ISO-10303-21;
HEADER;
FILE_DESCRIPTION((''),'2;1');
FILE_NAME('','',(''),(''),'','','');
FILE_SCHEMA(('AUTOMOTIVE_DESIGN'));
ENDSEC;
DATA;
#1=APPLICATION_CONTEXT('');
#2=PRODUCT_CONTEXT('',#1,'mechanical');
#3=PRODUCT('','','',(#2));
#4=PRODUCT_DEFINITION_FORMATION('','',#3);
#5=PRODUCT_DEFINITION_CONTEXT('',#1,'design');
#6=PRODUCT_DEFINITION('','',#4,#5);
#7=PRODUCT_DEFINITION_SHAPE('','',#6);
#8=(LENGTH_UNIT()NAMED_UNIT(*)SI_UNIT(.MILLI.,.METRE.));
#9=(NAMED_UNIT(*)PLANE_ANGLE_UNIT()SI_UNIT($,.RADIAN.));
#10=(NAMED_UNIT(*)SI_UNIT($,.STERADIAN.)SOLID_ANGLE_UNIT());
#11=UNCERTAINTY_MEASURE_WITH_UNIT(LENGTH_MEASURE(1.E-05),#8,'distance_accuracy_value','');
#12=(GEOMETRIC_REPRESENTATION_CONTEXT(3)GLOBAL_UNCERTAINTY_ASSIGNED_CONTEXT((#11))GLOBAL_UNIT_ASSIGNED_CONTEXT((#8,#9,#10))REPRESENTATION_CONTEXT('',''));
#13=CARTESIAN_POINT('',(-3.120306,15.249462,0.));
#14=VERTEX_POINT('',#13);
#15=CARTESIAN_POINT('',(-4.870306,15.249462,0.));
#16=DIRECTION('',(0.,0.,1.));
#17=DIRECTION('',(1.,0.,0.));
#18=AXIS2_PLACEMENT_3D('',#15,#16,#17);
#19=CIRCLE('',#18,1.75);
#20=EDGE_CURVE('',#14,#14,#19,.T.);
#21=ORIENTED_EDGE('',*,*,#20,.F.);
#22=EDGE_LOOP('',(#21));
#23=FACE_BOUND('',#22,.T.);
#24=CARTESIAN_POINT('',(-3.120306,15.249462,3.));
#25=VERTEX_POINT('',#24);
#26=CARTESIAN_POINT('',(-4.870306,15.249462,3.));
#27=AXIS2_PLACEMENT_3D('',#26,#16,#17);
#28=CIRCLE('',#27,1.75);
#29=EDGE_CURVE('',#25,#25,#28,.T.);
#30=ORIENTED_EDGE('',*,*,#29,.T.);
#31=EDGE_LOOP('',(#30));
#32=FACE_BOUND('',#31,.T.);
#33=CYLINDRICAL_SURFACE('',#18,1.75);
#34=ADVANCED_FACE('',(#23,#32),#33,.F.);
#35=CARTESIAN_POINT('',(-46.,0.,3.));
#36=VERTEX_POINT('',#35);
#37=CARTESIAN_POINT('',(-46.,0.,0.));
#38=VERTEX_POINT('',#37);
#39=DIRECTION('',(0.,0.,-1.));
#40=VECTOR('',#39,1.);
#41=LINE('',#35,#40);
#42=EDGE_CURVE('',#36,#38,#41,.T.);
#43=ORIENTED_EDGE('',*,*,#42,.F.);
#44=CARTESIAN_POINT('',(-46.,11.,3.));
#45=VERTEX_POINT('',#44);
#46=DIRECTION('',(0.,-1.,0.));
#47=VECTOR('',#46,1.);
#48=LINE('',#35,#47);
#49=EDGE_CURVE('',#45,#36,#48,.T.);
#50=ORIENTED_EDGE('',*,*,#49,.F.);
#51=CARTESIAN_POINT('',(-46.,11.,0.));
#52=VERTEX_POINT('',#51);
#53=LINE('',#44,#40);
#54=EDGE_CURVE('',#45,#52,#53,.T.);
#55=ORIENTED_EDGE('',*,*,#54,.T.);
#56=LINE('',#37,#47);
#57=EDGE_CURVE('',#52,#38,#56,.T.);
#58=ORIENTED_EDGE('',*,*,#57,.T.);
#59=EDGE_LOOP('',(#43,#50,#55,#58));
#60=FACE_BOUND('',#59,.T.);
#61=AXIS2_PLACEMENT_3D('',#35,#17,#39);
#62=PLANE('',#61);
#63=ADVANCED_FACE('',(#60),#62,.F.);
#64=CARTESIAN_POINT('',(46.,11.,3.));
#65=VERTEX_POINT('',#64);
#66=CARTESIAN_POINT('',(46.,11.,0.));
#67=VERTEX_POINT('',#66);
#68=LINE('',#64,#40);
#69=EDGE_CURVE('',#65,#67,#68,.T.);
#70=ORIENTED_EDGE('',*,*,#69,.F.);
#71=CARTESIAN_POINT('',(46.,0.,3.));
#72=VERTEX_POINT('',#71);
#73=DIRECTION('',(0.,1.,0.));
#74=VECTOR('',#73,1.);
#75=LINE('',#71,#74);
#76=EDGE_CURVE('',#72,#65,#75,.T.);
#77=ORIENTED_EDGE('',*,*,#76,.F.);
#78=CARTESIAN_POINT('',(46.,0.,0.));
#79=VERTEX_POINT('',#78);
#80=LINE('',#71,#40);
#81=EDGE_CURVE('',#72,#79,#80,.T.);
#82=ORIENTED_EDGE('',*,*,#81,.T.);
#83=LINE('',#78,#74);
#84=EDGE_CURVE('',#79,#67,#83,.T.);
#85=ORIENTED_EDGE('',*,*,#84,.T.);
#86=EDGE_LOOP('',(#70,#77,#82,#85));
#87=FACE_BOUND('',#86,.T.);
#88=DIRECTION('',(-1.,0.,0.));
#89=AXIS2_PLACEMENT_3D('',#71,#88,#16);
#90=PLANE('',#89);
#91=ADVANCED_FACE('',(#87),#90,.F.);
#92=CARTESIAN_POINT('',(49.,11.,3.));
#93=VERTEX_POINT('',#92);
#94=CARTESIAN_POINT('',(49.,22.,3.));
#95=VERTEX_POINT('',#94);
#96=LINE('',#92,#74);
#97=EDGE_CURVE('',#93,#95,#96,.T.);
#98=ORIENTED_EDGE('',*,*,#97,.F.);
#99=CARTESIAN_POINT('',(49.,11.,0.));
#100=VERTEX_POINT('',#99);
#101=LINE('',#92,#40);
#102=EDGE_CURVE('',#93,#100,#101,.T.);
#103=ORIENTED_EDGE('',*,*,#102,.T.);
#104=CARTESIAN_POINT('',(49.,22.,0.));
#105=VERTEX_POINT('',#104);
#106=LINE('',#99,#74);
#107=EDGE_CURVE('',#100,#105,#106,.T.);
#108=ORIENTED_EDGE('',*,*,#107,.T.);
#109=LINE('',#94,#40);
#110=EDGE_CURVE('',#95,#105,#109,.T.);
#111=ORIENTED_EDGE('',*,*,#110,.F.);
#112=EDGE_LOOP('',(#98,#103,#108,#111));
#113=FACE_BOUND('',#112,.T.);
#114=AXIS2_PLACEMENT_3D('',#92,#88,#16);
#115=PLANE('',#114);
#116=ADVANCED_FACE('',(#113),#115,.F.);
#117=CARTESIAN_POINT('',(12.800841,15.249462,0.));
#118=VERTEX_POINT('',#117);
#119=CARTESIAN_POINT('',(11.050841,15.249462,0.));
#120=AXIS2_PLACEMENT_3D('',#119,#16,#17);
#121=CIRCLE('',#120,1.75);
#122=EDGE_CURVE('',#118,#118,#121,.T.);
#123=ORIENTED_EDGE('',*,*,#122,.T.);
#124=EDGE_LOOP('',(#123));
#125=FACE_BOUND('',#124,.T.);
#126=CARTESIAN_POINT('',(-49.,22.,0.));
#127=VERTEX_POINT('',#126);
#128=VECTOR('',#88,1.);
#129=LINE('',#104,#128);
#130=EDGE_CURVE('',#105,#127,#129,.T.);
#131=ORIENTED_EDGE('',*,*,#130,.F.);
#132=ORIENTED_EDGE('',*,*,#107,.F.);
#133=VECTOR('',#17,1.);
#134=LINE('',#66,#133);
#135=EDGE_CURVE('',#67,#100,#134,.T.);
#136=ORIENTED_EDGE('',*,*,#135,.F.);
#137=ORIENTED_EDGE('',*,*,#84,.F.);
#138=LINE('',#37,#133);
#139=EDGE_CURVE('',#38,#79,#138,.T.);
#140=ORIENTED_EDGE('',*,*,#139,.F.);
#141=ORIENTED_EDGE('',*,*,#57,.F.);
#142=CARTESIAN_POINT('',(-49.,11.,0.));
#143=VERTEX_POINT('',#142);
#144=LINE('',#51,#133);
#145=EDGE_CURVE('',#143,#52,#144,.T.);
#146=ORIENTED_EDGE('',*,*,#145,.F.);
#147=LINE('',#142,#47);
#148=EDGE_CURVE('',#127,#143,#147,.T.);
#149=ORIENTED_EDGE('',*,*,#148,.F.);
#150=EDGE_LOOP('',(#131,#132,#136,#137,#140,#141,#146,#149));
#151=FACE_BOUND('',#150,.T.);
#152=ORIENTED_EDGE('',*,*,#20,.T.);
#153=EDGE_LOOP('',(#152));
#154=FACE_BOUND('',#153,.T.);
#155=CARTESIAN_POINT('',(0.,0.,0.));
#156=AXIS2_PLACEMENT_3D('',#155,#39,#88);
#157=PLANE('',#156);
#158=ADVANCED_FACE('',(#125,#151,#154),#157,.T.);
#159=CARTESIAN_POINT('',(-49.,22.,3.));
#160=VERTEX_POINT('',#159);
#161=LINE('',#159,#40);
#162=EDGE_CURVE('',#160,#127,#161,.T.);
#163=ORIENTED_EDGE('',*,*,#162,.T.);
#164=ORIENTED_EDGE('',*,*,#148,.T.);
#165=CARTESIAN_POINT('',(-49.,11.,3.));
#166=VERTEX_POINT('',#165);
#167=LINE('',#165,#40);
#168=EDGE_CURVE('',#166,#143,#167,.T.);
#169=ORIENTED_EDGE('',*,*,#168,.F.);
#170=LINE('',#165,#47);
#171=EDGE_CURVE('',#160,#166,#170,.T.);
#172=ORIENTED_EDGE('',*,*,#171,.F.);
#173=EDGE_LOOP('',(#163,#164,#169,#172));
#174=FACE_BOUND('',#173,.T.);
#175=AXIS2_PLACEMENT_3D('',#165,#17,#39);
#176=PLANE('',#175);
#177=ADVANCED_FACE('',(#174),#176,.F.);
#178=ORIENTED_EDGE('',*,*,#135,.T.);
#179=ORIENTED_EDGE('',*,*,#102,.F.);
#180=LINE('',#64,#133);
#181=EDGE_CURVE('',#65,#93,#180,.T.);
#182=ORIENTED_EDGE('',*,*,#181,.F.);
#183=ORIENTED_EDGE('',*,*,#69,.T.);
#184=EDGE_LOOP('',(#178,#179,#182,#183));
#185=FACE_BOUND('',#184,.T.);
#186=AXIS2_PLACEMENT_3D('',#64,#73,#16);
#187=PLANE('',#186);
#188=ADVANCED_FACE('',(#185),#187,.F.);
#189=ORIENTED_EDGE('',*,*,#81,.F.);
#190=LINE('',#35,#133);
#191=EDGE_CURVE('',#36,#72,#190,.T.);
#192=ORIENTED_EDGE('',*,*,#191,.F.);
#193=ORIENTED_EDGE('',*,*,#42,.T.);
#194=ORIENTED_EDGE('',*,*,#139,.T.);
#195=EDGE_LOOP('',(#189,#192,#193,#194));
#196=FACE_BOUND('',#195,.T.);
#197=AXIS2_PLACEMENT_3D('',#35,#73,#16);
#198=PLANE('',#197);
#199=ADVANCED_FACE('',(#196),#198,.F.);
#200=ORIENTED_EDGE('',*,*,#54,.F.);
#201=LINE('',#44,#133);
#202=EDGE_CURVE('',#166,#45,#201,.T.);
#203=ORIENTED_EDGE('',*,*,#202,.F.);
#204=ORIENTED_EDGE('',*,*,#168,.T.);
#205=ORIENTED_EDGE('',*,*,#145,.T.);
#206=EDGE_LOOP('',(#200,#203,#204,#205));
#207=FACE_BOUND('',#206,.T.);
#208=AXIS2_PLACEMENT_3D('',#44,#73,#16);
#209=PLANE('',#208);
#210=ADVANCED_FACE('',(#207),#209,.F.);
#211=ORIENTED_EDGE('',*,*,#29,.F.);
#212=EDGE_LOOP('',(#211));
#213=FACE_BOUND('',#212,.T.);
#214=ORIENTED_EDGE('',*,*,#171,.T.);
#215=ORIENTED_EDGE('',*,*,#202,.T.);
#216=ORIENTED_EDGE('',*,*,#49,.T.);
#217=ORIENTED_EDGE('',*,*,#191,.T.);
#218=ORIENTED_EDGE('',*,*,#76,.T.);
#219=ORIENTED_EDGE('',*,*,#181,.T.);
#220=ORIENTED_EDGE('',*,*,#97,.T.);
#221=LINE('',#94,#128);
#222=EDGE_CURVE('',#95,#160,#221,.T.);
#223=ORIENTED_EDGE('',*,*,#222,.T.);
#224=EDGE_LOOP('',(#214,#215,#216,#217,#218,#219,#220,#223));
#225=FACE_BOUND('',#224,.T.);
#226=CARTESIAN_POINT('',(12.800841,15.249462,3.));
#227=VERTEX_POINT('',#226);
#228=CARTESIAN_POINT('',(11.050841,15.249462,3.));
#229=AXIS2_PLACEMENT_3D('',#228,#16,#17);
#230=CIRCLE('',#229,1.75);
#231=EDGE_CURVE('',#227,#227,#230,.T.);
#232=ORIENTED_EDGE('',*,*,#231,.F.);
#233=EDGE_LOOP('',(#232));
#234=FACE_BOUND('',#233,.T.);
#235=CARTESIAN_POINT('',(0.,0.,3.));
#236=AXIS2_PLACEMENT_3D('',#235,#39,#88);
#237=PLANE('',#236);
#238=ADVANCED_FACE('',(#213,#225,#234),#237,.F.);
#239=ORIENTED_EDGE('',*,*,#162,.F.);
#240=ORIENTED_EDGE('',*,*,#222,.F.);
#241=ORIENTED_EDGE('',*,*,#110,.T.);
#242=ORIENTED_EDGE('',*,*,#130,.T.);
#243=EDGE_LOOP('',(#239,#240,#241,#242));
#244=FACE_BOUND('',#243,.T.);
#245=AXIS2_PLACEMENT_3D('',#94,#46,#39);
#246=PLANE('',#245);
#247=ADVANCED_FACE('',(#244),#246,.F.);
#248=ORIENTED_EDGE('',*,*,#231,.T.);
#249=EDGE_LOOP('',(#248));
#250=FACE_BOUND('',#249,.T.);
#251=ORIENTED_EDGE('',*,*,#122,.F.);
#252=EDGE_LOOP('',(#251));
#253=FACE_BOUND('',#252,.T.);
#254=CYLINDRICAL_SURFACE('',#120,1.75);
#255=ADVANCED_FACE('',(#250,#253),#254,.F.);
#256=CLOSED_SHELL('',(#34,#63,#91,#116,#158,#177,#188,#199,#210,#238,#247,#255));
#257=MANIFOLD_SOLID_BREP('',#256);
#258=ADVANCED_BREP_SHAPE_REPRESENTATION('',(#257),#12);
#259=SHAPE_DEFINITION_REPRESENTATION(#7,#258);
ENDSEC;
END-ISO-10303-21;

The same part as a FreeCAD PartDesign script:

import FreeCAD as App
import Part
import Sketcher
from FreeCAD import Vector


def add_polygon(sketch, points):
    """Adds a closed chain of lines whose ends are joined by coincident constraints."""
    first, n = sketch.GeometryCount, len(points)
    for a, b in zip(points, points[1:] + points[:1]):
        sketch.addGeometry(Part.LineSegment(App.Vector(*a, 0), App.Vector(*b, 0)), False)
    for i in range(n):
        sketch.addConstraint(Sketcher.Constraint("Coincident", first + i, 2, first + (i + 1) % n, 1))

doc = App.newDocument("Part")
params = doc.addObject("Spreadsheet::Sheet", "Params")
for row, (alias, value) in enumerate([
    ("sketch1_width", "92 mm"),
    ("sketch1_width2", "3 mm"),
    ("sketch1_height", "11 mm"),
    ("pad1_length", "3 mm"),
    ("sketch2_diameter", "3.5 mm"),
    ("pocket1_length", "3 mm"),
], start=1):
    params.set(f"A{row}", alias)
    params.set(f"B{row}", "=" + value)
    params.setAlias(f"B{row}", alias)

body = doc.addObject("PartDesign::Body", "Body")

sketch1 = body.newObject("Sketcher::SketchObject", "Sketch")
sketch1.AttachmentSupport = (doc.getObject("XY_Plane"), [""])
sketch1.MapMode = "FlatFace"
add_polygon(sketch1, [(-46, 0), (46, 0), (46, 11), (49, 11), (49, 22), (-49, 22), (-49, 11), (-46, 11)])
sketch1.addConstraint([
    Sketcher.Constraint("Horizontal", 0),
    Sketcher.Constraint("Vertical", 1),
    Sketcher.Constraint("Horizontal", 2),
    Sketcher.Constraint("Vertical", 3),
    Sketcher.Constraint("Horizontal", 4),
    Sketcher.Constraint("Vertical", 5),
    Sketcher.Constraint("Horizontal", 6),
    Sketcher.Constraint("Vertical", 7),
    Sketcher.Constraint("Symmetric", 0, 2, 7, 2, -1, 1),
    Sketcher.Constraint("Symmetric", 2, 2, 5, 2, -2),
    Sketcher.Constraint("Equal", 1, 3),
    Sketcher.Constraint("DistanceX", 0, 1, 0, 2, 92.0),
    Sketcher.Constraint("DistanceX", 2, 1, 2, 2, 3.0),
    Sketcher.Constraint("DistanceY", 1, 1, 1, 2, 11.0),
])
sketch1.setExpression("Constraints[19]", "Params.sketch1_width")
sketch1.setExpression("Constraints[20]", "Params.sketch1_width2")
sketch1.setExpression("Constraints[21]", "Params.sketch1_height")
pad1 = body.newObject("PartDesign::Pad", "Pad")
pad1.Profile = sketch1
pad1.setExpression("Length", "Params.pad1_length")

sketch2 = body.newObject("Sketcher::SketchObject", "Sketch001")
sketch2.AttachmentSupport = (doc.getObject("XY_Plane"), [""])
sketch2.MapMode = "FlatFace"
sketch2.AttachmentOffset = App.Placement(Vector(0, 0, 3), App.Rotation())
sketch2.addGeometry([
    Part.Circle(Vector(-4.9, 15.2, 0), Vector(0, 0, 1), 1.8),
    Part.Circle(Vector(11.1, 15.2, 0), Vector(0, 0, 1), 1.8),
], False)
sketch2.addConstraint([
    Sketcher.Constraint("Equal", 0, 1),
    Sketcher.Constraint("Horizontal", 0, 3, 1, 3),
    Sketcher.Constraint("Diameter", 0, 3.5),
    Sketcher.Constraint("DistanceX", -1, 1, 1, 3, 11.050841),
    Sketcher.Constraint("DistanceX", 0, 3, -1, 1, 4.870306),
    Sketcher.Constraint("DistanceY", -1, 1, 0, 3, 15.249462),
])
sketch2.setExpression("Constraints[2]", "Params.sketch2_diameter")
pocket1 = body.newObject("PartDesign::Pocket", "Pocket")
pocket1.Profile = sketch2
pocket1.setExpression("Length", "Params.pocket1_length")

doc.recompute()
